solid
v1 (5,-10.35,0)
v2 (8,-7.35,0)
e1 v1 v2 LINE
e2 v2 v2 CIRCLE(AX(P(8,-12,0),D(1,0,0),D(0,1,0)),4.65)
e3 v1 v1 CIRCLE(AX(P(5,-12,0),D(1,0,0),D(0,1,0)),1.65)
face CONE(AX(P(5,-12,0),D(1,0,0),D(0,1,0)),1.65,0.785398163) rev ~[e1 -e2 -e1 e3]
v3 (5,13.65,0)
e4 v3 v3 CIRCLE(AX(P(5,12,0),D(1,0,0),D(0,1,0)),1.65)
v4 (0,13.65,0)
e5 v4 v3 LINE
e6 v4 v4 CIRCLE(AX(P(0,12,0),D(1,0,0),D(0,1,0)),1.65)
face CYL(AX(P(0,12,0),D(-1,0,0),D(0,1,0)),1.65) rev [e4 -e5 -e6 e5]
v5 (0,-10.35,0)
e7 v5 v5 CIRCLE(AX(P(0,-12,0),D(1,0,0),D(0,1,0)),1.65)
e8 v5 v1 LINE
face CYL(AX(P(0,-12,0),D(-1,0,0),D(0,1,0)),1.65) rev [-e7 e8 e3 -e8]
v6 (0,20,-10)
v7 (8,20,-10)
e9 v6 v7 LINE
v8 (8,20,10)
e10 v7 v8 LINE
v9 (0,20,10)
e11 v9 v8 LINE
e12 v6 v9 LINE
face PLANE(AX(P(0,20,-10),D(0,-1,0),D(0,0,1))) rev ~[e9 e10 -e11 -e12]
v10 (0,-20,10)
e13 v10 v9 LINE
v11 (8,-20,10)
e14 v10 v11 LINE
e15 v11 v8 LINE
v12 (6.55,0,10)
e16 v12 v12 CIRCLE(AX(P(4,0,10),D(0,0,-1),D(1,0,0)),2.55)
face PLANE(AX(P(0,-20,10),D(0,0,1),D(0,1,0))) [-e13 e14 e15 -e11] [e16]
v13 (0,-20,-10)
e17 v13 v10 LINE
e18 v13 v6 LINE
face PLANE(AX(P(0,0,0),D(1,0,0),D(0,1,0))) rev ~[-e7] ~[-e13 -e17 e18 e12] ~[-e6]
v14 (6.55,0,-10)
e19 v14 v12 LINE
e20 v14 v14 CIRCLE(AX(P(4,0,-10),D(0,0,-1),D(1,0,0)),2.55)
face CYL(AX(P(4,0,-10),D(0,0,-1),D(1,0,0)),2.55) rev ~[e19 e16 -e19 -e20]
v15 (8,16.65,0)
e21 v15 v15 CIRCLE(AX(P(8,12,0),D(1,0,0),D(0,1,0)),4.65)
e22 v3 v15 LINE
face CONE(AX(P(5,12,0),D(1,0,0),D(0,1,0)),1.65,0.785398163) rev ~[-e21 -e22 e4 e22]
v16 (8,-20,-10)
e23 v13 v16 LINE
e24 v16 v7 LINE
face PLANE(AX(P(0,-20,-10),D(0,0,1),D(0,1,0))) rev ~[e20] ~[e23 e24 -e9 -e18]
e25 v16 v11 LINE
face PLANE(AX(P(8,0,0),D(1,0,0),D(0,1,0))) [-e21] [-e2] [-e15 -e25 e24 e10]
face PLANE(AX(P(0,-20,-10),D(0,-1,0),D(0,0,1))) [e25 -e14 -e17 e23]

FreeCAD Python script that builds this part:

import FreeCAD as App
import Part
import Sketcher
from FreeCAD import Vector
Q = App.Units.Quantity


def edges_at(feature, points):
    """Names of the edges that pass closest to the given points."""
    edges = feature.Shape.Edges
    near = lambda p: min(range(len(edges)), key=lambda i: edges[i].distToShape(Part.Vertex(*p))[0])
    return sorted({f"Edge{near(p) + 1}" for p in points})

doc = App.newDocument("Part")
body = doc.addObject("PartDesign::Body", "Body")

# Sketch on YZ plane
sketch1 = doc.addObject("Sketcher::SketchObject", "Sketch")
body.addObject(sketch1)
sketch1.AttachmentSupport = (doc.YZ_Plane, [""])
sketch1.MapMode = "FlatFace"
sketch1.addGeometry([
    Part.LineSegment(Vector(-20, 10, 0), Vector(-20, -10, 0)),  # 0
    Part.LineSegment(Vector(-20, -10, 0), Vector(20, -10, 0)),  # 1
    Part.LineSegment(Vector(20, -10, 0), Vector(20, 10, 0)),  # 2
    Part.LineSegment(Vector(20, 10, 0), Vector(-20, 10, 0)),  # 3
    Part.Circle(Vector(-12, 0, 0), Vector(0, 0, 1), 1.6),  # 4
    Part.Circle(Vector(12, 0, 0), Vector(0, 0, 1), 1.6),  # 5
], False)
sketch1.addConstraint([
    Sketcher.Constraint("Coincident", 0, 2, 1, 1),
    Sketcher.Constraint("Coincident", 1, 2, 2, 1),
    Sketcher.Constraint("Coincident", 2, 2, 3, 1),
    Sketcher.Constraint("Coincident", 3, 2, 0, 1),
    Sketcher.Constraint("Vertical", 0),
    Sketcher.Constraint("Horizontal", 1),
    Sketcher.Constraint("Vertical", 2),
    Sketcher.Constraint("Horizontal", 3),
    Sketcher.Constraint("Equal", 4, 5),
    Sketcher.Constraint("Symmetric", 4, 3, 5, 3, -1, 1),
    Sketcher.Constraint("Symmetric", 0, 2, 2, 2, -1, 1),
    Sketcher.Constraint("PointOnObject", 4, 3, -1),
    Sketcher.Constraint("Diameter", 4, Q("3.3 mm")),
    Sketcher.Constraint("DistanceX", 1, 1, 1, 2, Q("40 mm")),
    Sketcher.Constraint("DistanceY", 0, 2, 0, 1, Q("20 mm")),
    Sketcher.Constraint("DistanceX", 4, 3, -1, 1, Q("12 mm")),
])
pad1 = doc.addObject("PartDesign::Pad", "Pad")
body.addObject(pad1)
pad1.Profile = sketch1
pad1.Length = 8
doc.recompute()

chamfer = doc.addObject("PartDesign::Chamfer", "Chamfer")
body.addObject(chamfer)
chamfer.Base = (pad1, edges_at(pad1, [(8, -13.65, 0), (8, 10.35, 0)]))
chamfer.Size = 3

# Sketch on XY plane
sketch2 = doc.addObject("Sketcher::SketchObject", "Sketch001")
body.addObject(sketch2)
sketch2.AttachmentSupport = (doc.XY_Plane, [""])
sketch2.MapMode = "FlatFace"
sketch2.AttachmentOffset = App.Placement(Vector(0, 0, -10), App.Rotation())
sketch2.addGeometry(Part.Circle(Vector(4, 0, 0), Vector(0, 0, 1), 2.5), False)
sketch2.addConstraint([
    Sketcher.Constraint("PointOnObject", 0, 3, -1),
    Sketcher.Constraint("Diameter", 0, Q("5.1 mm")),
    Sketcher.Constraint("DistanceX", -1, 1, 0, 3, Q("4 mm")),
])
pocket1 = doc.addObject("PartDesign::Pocket", "Pocket")
body.addObject(pocket1)
pocket1.Profile = sketch2
pocket1.Type = "ThroughAll"
pocket1.Reversed = True

doc.recompute()
